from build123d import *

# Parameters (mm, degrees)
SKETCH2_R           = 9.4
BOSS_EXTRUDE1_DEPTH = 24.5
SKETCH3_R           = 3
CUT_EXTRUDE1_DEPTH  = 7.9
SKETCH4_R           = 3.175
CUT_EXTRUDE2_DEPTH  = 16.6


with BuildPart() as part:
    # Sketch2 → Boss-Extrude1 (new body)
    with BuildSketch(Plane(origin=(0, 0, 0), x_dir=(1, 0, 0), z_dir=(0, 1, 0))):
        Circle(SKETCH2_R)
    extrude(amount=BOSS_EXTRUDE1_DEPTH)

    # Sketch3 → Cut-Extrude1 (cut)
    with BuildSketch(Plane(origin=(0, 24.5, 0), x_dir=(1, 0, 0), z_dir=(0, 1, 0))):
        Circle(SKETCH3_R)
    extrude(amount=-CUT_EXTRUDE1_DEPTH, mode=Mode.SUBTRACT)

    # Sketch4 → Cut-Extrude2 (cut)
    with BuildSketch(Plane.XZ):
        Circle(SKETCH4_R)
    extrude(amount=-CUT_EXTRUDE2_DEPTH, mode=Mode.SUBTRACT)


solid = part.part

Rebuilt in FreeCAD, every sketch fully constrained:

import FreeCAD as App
import Part
import Sketcher

V = App.Vector
Q = App.Units.Quantity

doc = App.newDocument("Part")
params = doc.addObject("Spreadsheet::Sheet", "Params")
for row, (alias, value) in enumerate([
    ("sketch1_diameter", "18.8 mm"),
    ("pad1_length", "24.5 mm"),
    ("sketch2_diameter", "6 mm"),
    ("pocket1_length", "7.9 mm"),
    ("sketch3_diameter", "6.35 mm"),
    ("pocket2_length", "16.6 mm"),
], start=1):
    params.set(f"A{row}", alias)
    params.set(f"B{row}", "=" + value)
    params.setAlias(f"B{row}", alias)

body = doc.addObject("PartDesign::Body", "Body")

sketch1 = doc.addObject("Sketcher::SketchObject", "Sketch")
body.addObject(sketch1)
sketch1.AttachmentSupport = (doc.XZ_Plane, [""])
sketch1.MapMode = "FlatFace"
sketch1.addGeometry(Part.Circle(V(0, 0, 0), V(0, 0, 1), 9), False)
sketch1.addConstraint([
    Sketcher.Constraint("Coincident", 0, 3, -1, 1),
    Sketcher.Constraint("Diameter", 0, Q("18.8 mm")),
])
sketch1.setExpression("Constraints[1]", "Params.sketch1_diameter")
pad1 = doc.addObject("PartDesign::Pad", "Pad")
body.addObject(pad1)
pad1.Profile = sketch1
pad1.setExpression("Length", "Params.pad1_length")
pad1.Reversed = True

sketch2 = doc.addObject("Sketcher::SketchObject", "Sketch001")
body.addObject(sketch2)
sketch2.AttachmentSupport = (doc.XZ_Plane, [""])
sketch2.MapMode = "FlatFace"
sketch2.AttachmentOffset = App.Placement(V(0, 0, -24.5), App.Rotation())
sketch2.addGeometry(Part.Circle(V(0, 0, 0), V(0, 0, 1), 3), False)
sketch2.addConstraint([
    Sketcher.Constraint("Coincident", 0, 3, -1, 1),
    Sketcher.Constraint("Diameter", 0, Q("6 mm")),
])
sketch2.setExpression("Constraints[1]", "Params.sketch2_diameter")
pocket1 = doc.addObject("PartDesign::Pocket", "Pocket")
body.addObject(pocket1)
pocket1.Profile = sketch2
pocket1.setExpression("Length", "Params.pocket1_length")
pocket1.Reversed = True

sketch3 = doc.addObject("Sketcher::SketchObject", "Sketch002")
body.addObject(sketch3)
sketch3.AttachmentSupport = (doc.XZ_Plane, [""])
sketch3.MapMode = "FlatFace"
sketch3.addGeometry(Part.Circle(V(0, 0, 0), V(0, 0, 1), 3.2), False)
sketch3.addConstraint([
    Sketcher.Constraint("Coincident", 0, 3, -1, 1),
    Sketcher.Constraint("Diameter", 0, Q("6.35 mm")),
])
sketch3.setExpression("Constraints[1]", "Params.sketch3_diameter")
pocket2 = doc.addObject("PartDesign::Pocket", "Pocket001")
body.addObject(pocket2)
pocket2.Profile = sketch3
pocket2.setExpression("Length", "Params.pocket2_length")

doc.recompute()
